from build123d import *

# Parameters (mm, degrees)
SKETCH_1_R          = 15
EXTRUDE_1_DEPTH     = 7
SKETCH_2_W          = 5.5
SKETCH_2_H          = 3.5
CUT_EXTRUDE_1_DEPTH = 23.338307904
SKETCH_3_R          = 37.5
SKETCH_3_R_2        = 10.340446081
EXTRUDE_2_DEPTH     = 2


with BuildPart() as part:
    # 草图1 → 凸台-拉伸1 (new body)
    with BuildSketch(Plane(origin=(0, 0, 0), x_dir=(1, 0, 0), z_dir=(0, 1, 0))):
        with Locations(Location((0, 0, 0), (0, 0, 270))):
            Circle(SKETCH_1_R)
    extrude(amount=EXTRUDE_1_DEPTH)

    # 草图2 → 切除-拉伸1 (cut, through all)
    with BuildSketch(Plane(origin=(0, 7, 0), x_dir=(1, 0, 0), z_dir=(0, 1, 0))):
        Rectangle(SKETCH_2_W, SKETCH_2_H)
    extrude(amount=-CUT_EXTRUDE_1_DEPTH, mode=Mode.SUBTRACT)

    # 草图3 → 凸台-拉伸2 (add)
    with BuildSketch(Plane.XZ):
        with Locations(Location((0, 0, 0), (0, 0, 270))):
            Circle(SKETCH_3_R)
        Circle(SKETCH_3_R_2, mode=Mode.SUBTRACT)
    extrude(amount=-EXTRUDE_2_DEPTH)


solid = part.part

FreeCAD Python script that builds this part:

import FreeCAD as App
import Part
import Sketcher

V = App.Vector

doc = App.newDocument("Part")
body = doc.addObject("PartDesign::Body", "Body")

# Sketch on XZ plane
sketch1 = doc.addObject("Sketcher::SketchObject", "Sketch")
body.addObject(sketch1)
sketch1.AttachmentSupport = (doc.XZ_Plane, [""])
sketch1.MapMode = "FlatFace"
sketch1.addGeometry(Part.Circle(V(0, 0, 0), V(0, 0, 1), 15), False)
sketch1.addConstraint([
    Sketcher.Constraint("Coincident", 0, 3, -1, 1),
    Sketcher.Constraint("Diameter", 0, 30.0),
])
pad1 = doc.addObject("PartDesign::Pad", "Pad")
body.addObject(pad1)
pad1.Profile = sketch1
pad1.Length = 7
pad1.Reversed = True

# Sketch on XZ plane
sketch2 = doc.addObject("Sketcher::SketchObject", "Sketch001")
body.addObject(sketch2)
sketch2.AttachmentSupport = (doc.XZ_Plane, [""])
sketch2.MapMode = "FlatFace"
sketch2.AttachmentOffset = App.Placement(V(0, 0, -7), App.Rotation())
sketch2.addGeometry([
    Part.LineSegment(V(-2.75, -1.75, 0), V(-2.75, 1.75, 0)),
    Part.LineSegment(V(-2.75, 1.75, 0), V(2.75, 1.75, 0)),
    Part.LineSegment(V(2.75, 1.75, 0), V(2.75, -1.75, 0)),
    Part.LineSegment(V(2.75, -1.75, 0), V(-2.75, -1.75, 0)),
], False)
sketch2.addConstraint([
    Sketcher.Constraint("Coincident", 0, 2, 1, 1),
    Sketcher.Constraint("Coincident", 1, 2, 2, 1),
    Sketcher.Constraint("Coincident", 2, 2, 3, 1),
    Sketcher.Constraint("Coincident", 3, 2, 0, 1),
    Sketcher.Constraint("Vertical", 0),
    Sketcher.Constraint("Horizontal", 1),
    Sketcher.Constraint("Vertical", 2),
    Sketcher.Constraint("Horizontal", 3),
    Sketcher.Constraint("Symmetric", 0, 2, 2, 2, -1, 1),
    Sketcher.Constraint("DistanceX", 1, 1, 1, 2, 5.5),
    Sketcher.Constraint("DistanceY", 0, 1, 0, 2, 3.5),
])
pocket1 = doc.addObject("PartDesign::Pocket", "Pocket")
body.addObject(pocket1)
pocket1.Profile = sketch2
pocket1.Type = "ThroughAll"
pocket1.Reversed = True

# Sketch on XZ plane
sketch3 = doc.addObject("Sketcher::SketchObject", "Sketch002")
body.addObject(sketch3)
sketch3.AttachmentSupport = (doc.XZ_Plane, [""])
sketch3.MapMode = "FlatFace"
sketch3.addGeometry([
    Part.Circle(V(0, 0, 0), V(0, 0, 1), 37.5),
    Part.Circle(V(0, 0, 0), V(0, 0, 1), 10.340446),
], False)
sketch3.addConstraint([
    Sketcher.Constraint("Coincident", 0, 3, -1, 1),
    Sketcher.Constraint("Coincident", 1, 3, -1, 1),
    Sketcher.Constraint("Diameter", 0, 75.0),
    Sketcher.Constraint("Diameter", 1, 20.680892),
])
pad2 = doc.addObject("PartDesign::Pad", "Pad001")
body.addObject(pad2)
pad2.Profile = sketch3
pad2.Length = 2
pad2.Reversed = True

doc.recompute()
